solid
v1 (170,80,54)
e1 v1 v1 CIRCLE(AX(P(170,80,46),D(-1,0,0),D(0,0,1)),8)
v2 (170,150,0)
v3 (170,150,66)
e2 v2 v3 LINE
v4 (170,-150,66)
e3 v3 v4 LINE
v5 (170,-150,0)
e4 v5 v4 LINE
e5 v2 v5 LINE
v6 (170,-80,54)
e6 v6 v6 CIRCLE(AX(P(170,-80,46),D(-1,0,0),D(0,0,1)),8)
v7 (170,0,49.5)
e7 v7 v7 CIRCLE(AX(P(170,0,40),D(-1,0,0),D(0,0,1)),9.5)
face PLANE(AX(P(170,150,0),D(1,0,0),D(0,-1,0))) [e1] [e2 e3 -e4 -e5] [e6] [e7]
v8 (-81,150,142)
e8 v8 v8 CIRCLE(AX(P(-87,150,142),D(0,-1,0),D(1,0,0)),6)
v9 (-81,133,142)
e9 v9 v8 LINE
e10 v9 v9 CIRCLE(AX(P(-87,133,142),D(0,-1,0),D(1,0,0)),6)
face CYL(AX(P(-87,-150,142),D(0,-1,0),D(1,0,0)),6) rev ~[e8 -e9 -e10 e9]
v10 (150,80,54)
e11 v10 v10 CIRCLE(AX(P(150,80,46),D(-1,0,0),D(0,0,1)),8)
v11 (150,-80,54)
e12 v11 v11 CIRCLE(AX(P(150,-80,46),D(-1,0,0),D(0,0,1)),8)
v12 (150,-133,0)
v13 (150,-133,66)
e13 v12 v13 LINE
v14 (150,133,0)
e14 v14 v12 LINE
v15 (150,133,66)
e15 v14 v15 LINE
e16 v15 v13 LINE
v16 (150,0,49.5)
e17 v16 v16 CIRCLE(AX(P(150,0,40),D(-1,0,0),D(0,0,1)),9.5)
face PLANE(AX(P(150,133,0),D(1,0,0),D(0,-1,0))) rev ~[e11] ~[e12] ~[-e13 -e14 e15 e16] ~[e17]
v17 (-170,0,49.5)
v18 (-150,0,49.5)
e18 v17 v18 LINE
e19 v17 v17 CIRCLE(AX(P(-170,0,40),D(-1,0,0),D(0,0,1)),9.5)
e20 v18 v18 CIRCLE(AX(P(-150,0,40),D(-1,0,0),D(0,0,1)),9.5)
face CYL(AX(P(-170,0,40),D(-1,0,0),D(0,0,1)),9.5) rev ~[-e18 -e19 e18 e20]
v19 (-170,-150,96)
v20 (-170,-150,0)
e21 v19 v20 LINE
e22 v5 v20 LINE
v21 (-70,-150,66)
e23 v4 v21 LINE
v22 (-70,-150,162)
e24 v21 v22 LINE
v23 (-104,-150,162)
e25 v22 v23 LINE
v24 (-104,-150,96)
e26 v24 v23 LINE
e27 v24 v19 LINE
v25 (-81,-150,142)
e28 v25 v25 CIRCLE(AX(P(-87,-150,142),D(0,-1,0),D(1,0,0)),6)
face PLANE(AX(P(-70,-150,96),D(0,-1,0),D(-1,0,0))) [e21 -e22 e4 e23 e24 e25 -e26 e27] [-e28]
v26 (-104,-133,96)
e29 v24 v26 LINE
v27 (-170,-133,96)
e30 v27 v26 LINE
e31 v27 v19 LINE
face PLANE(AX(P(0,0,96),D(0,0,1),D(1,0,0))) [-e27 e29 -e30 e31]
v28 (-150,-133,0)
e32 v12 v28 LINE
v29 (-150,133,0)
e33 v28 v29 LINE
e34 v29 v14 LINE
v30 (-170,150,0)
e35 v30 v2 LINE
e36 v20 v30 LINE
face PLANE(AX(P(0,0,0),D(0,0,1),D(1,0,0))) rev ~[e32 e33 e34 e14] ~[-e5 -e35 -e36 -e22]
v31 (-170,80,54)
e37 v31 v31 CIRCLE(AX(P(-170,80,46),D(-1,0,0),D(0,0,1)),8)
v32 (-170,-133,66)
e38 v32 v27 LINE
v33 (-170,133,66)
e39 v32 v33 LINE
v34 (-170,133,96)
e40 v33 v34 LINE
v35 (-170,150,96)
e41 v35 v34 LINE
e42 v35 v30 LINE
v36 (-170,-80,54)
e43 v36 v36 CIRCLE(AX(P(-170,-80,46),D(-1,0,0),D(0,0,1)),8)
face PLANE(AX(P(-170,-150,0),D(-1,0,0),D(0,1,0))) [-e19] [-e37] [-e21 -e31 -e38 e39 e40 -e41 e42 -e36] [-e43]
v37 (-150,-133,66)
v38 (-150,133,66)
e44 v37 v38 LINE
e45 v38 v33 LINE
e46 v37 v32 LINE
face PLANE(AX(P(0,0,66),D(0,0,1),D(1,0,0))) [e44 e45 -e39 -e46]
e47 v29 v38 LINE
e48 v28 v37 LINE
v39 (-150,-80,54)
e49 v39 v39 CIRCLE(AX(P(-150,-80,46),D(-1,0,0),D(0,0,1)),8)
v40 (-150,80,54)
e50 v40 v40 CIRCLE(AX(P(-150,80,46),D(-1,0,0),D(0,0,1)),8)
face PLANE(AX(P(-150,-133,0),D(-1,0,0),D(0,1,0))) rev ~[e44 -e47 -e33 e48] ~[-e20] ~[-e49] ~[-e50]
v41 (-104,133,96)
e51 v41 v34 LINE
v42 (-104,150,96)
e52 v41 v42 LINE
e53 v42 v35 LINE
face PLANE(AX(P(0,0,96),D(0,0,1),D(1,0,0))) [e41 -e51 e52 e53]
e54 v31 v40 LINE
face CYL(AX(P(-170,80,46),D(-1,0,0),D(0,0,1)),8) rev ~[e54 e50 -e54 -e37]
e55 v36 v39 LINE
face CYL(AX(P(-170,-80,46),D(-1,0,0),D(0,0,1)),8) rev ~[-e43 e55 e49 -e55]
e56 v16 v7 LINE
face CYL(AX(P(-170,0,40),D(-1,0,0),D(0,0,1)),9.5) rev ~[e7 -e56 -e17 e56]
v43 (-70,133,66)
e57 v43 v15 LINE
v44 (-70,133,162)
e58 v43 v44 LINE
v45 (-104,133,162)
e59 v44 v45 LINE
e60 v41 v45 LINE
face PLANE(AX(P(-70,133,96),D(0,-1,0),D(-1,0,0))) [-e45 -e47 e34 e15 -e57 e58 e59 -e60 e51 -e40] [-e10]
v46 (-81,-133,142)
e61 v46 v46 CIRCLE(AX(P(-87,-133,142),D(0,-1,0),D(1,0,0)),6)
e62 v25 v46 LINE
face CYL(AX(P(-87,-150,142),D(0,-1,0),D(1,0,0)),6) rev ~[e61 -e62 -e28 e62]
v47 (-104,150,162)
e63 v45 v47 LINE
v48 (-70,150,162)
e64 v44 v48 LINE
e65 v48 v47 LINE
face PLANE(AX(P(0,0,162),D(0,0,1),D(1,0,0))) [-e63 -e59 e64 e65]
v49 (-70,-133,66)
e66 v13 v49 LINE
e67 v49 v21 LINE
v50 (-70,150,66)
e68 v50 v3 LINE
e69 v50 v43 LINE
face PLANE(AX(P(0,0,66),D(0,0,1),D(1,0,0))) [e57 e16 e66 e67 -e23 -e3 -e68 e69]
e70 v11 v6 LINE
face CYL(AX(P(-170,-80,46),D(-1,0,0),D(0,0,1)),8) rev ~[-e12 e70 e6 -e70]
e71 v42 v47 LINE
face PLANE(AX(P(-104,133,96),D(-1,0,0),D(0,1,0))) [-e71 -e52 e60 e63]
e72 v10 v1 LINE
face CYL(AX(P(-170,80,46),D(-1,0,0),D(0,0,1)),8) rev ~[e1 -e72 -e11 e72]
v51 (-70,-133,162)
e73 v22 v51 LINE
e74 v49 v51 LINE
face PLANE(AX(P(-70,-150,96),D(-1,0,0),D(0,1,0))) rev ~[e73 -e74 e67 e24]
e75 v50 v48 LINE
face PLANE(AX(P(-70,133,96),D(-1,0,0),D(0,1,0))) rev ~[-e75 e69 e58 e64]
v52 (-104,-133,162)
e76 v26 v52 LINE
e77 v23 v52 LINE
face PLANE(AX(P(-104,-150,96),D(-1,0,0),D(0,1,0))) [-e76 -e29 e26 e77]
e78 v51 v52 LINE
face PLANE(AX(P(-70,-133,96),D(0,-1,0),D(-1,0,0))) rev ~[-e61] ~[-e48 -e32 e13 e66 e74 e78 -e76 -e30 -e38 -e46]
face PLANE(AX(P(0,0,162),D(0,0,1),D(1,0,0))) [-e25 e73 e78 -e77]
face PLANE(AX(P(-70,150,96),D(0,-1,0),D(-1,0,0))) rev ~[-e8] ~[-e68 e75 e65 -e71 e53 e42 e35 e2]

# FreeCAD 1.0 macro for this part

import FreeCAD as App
import Part
import Sketcher

V = App.Vector


def add_polygon(sketch, points):
    """Adds a closed chain of lines whose ends are joined by coincident constraints."""
    first, n = sketch.GeometryCount, len(points)
    for a, b in zip(points, points[1:] + points[:1]):
        sketch.addGeometry(Part.LineSegment(App.Vector(*a, 0), App.Vector(*b, 0)), False)
    for i in range(n):
        sketch.addConstraint(Sketcher.Constraint("Coincident", first + i, 2, first + (i + 1) % n, 1))

doc = App.newDocument("Part")
body = doc.addObject("PartDesign::Body", "Body")

sketch1 = doc.addObject("Sketcher::SketchObject", "Sketch")
body.addObject(sketch1)
sketch1.AttachmentSupport = (doc.XY_Plane, [""])
sketch1.MapMode = "FlatFace"
add_polygon(sketch1, [(-170, -150), (170, -150), (170, 150), (-170, 150)])
add_polygon(sketch1, [(150, 133), (150, -133), (-150, -133), (-150, 133)])
sketch1.addConstraint(Sketcher.Constraint("Horizontal", 0))
sketch1.addConstraint(Sketcher.Constraint("Vertical", 1))
sketch1.addConstraint(Sketcher.Constraint("Horizontal", 2))
sketch1.addConstraint(Sketcher.Constraint("Vertical", 3))
sketch1.addConstraint(Sketcher.Constraint("Vertical", 4))
sketch1.addConstraint(Sketcher.Constraint("Horizontal", 5))
sketch1.addConstraint(Sketcher.Constraint("Vertical", 6))
sketch1.addConstraint(Sketcher.Constraint("Horizontal", 7))
sketch1.addConstraint(Sketcher.Constraint("Symmetric", 0, 2, 2, 2, -1, 1))
sketch1.addConstraint(Sketcher.Constraint("Symmetric", 4, 2, 6, 2, -1, 1))
sketch1.addConstraint(Sketcher.Constraint("Equal", 7, 1))
sketch1.addConstraint(Sketcher.Constraint("DistanceX", 5, 2, 5, 1, 300.0))
sketch1.addConstraint(Sketcher.Constraint("DistanceY", 4, 2, 4, 1, 266.0))
sketch1.addConstraint(Sketcher.Constraint("DistanceX", 4, 2, 0, 2, 20.0))
pad1 = doc.addObject("PartDesign::Pad", "Pad")
body.addObject(pad1)
pad1.Profile = sketch1
pad1.Length = 66

sketch2 = doc.addObject("Sketcher::SketchObject", "Sketch001")
body.addObject(sketch2)
sketch2.AttachmentSupport = (doc.YZ_Plane, [""])
sketch2.MapMode = "FlatFace"
sketch2.AttachmentOffset = App.Placement(V(0, 0, -170), App.Rotation())
sketch2.addGeometry(Part.Circle(V(80, 46, 0), V(0, 0, 1), 8), False)
sketch2.addGeometry(Part.Circle(V(-80, 46, 0), V(0, 0, 1), 8), False)
sketch2.addGeometry(Part.Circle(V(0, 40, 0), V(0, 0, 1), 10), False)
sketch2.addConstraint(Sketcher.Constraint("Equal", 0, 1))
sketch2.addConstraint(Sketcher.Constraint("Symmetric", 0, 3, 1, 3, -2))
sketch2.addConstraint(Sketcher.Constraint("PointOnObject", 2, 3, -2))
sketch2.addConstraint(Sketcher.Constraint("Diameter", 0, 16.0))
sketch2.addConstraint(Sketcher.Constraint("Diameter", 2, 19.0))
sketch2.addConstraint(Sketcher.Constraint("DistanceX", -1, 1, 0, 3, 80.0))
sketch2.addConstraint(Sketcher.Constraint("DistanceY", -1, 1, 0, 3, 46.0))
sketch2.addConstraint(Sketcher.Constraint("DistanceY", -1, 1, 2, 3, 40.0))
pocket1 = doc.addObject("PartDesign::Pocket", "Pocket")
body.addObject(pocket1)
pocket1.Profile = sketch2
pocket1.Type = "ThroughAll"
pocket1.Reversed = True

sketch3 = doc.addObject("Sketcher::SketchObject", "Sketch002")
body.addObject(sketch3)
sketch3.AttachmentSupport = (doc.XY_Plane, [""])
sketch3.MapMode = "FlatFace"
sketch3.AttachmentOffset = App.Placement(V(0, 0, 66), App.Rotation())
add_polygon(sketch3, [(-70, -150), (-70, -133), (-170, -133), (-170, -150)])
add_polygon(sketch3, [(-170, 150), (-170, 133), (-70, 133), (-70, 150)])
sketch3.addConstraint(Sketcher.Constraint("Vertical", 0))
sketch3.addConstraint(Sketcher.Constraint("Horizontal", 1))
sketch3.addConstraint(Sketcher.Constraint("Vertical", 2))
sketch3.addConstraint(Sketcher.Constraint("Horizontal", 3))
sketch3.addConstraint(Sketcher.Constraint("Vertical", 4))
sketch3.addConstraint(Sketcher.Constraint("Horizontal", 5))
sketch3.addConstraint(Sketcher.Constraint("Vertical", 6))
sketch3.addConstraint(Sketcher.Constraint("Horizontal", 7))
sketch3.addConstraint(Sketcher.Constraint("Symmetric", 1, 2, 4, 2, -1))
sketch3.addConstraint(Sketcher.Constraint("Symmetric", 3, 2, 6, 2, -1))
sketch3.addConstraint(Sketcher.Constraint("DistanceX", 1, 2, 1, 1, 100.0))
sketch3.addConstraint(Sketcher.Constraint("DistanceY", 0, 1, 0, 2, 17.0))
sketch3.addConstraint(Sketcher.Constraint("DistanceX", 0, 2, -1, 1, 70.0))
sketch3.addConstraint(Sketcher.Constraint("DistanceY", 0, 2, -1, 1, 133.0))
pad2 = doc.addObject("PartDesign::Pad", "Pad001")
body.addObject(pad2)
pad2.Profile = sketch3
pad2.Length = 30

sketch4 = doc.addObject("Sketcher::SketchObject", "Sketch003")
body.addObject(sketch4)
sketch4.AttachmentSupport = (doc.XY_Plane, [""])
sketch4.MapMode = "FlatFace"
sketch4.AttachmentOffset = App.Placement(V(0, 0, 96), App.Rotation())
add_polygon(sketch4, [(-104, 133), (-70, 133), (-70, 150), (-104, 150)])
sketch4.addConstraint(Sketcher.Constraint("Horizontal", 0))
sketch4.addConstraint(Sketcher.Constraint("Vertical", 1))
sketch4.addConstraint(Sketcher.Constraint("Horizontal", 2))
sketch4.addConstraint(Sketcher.Constraint("Vertical", 3))
sketch4.addConstraint(Sketcher.Constraint("DistanceX", 0, 1, 0, 2, 34.0))
sketch4.addConstraint(Sketcher.Constraint("DistanceY", 1, 1, 1, 2, 17.0))
sketch4.addConstraint(Sketcher.Constraint("DistanceX", 0, 2, -1, 1, 70.0))
sketch4.addConstraint(Sketcher.Constraint("DistanceY", -1, 1, 0, 2, 133.0))
pad3 = doc.addObject("PartDesign::Pad", "Pad002")
body.addObject(pad3)
pad3.Profile = sketch4
pad3.Length = 66

sketch5 = doc.addObject("Sketcher::SketchObject", "Sketch004")
body.addObject(sketch5)
sketch5.AttachmentSupport = (doc.XY_Plane, [""])
sketch5.MapMode = "FlatFace"
sketch5.AttachmentOffset = App.Placement(V(0, 0, 96), App.Rotation())
add_polygon(sketch5, [(-104, -150), (-70, -150), (-70, -133), (-104, -133)])
sketch5.addConstraint(Sketcher.Constraint("Horizontal", 0))
sketch5.addConstraint(Sketcher.Constraint("Vertical", 1))
sketch5.addConstraint(Sketcher.Constraint("Horizontal", 2))
sketch5.addConstraint(Sketcher.Constraint("Vertical", 3))
sketch5.addConstraint(Sketcher.Constraint("DistanceX", 0, 1, 0, 2, 34.0))
sketch5.addConstraint(Sketcher.Constraint("DistanceY", 1, 1, 1, 2, 17.0))
sketch5.addConstraint(Sketcher.Constraint("DistanceX", 0, 2, -1, 1, 70.0))
sketch5.addConstraint(Sketcher.Constraint("DistanceY", 0, 2, -1, 1, 150.0))
pad4 = doc.addObject("PartDesign::Pad", "Pad003")
body.addObject(pad4)
pad4.Profile = sketch5
pad4.Length = 66

sketch6 = doc.addObject("Sketcher::SketchObject", "Sketch005")
body.addObject(sketch6)
sketch6.AttachmentSupport = (doc.XZ_Plane, [""])
sketch6.MapMode = "FlatFace"
sketch6.AttachmentOffset = App.Placement(V(0, 0, 150), App.Rotation())
sketch6.addGeometry(Part.Circle(V(-87, 142, 0), V(0, 0, 1), 6), False)
sketch6.addConstraint(Sketcher.Constraint("Diameter", 0, 12.0))
sketch6.addConstraint(Sketcher.Constraint("DistanceX", 0, 3, -1, 1, 87.0))
sketch6.addConstraint(Sketcher.Constraint("DistanceY", -1, 1, 0, 3, 142.0))
pocket2 = doc.addObject("PartDesign::Pocket", "Pocket001")
body.addObject(pocket2)
pocket2.Profile = sketch6
pocket2.Type = "ThroughAll"

doc.recompute()
